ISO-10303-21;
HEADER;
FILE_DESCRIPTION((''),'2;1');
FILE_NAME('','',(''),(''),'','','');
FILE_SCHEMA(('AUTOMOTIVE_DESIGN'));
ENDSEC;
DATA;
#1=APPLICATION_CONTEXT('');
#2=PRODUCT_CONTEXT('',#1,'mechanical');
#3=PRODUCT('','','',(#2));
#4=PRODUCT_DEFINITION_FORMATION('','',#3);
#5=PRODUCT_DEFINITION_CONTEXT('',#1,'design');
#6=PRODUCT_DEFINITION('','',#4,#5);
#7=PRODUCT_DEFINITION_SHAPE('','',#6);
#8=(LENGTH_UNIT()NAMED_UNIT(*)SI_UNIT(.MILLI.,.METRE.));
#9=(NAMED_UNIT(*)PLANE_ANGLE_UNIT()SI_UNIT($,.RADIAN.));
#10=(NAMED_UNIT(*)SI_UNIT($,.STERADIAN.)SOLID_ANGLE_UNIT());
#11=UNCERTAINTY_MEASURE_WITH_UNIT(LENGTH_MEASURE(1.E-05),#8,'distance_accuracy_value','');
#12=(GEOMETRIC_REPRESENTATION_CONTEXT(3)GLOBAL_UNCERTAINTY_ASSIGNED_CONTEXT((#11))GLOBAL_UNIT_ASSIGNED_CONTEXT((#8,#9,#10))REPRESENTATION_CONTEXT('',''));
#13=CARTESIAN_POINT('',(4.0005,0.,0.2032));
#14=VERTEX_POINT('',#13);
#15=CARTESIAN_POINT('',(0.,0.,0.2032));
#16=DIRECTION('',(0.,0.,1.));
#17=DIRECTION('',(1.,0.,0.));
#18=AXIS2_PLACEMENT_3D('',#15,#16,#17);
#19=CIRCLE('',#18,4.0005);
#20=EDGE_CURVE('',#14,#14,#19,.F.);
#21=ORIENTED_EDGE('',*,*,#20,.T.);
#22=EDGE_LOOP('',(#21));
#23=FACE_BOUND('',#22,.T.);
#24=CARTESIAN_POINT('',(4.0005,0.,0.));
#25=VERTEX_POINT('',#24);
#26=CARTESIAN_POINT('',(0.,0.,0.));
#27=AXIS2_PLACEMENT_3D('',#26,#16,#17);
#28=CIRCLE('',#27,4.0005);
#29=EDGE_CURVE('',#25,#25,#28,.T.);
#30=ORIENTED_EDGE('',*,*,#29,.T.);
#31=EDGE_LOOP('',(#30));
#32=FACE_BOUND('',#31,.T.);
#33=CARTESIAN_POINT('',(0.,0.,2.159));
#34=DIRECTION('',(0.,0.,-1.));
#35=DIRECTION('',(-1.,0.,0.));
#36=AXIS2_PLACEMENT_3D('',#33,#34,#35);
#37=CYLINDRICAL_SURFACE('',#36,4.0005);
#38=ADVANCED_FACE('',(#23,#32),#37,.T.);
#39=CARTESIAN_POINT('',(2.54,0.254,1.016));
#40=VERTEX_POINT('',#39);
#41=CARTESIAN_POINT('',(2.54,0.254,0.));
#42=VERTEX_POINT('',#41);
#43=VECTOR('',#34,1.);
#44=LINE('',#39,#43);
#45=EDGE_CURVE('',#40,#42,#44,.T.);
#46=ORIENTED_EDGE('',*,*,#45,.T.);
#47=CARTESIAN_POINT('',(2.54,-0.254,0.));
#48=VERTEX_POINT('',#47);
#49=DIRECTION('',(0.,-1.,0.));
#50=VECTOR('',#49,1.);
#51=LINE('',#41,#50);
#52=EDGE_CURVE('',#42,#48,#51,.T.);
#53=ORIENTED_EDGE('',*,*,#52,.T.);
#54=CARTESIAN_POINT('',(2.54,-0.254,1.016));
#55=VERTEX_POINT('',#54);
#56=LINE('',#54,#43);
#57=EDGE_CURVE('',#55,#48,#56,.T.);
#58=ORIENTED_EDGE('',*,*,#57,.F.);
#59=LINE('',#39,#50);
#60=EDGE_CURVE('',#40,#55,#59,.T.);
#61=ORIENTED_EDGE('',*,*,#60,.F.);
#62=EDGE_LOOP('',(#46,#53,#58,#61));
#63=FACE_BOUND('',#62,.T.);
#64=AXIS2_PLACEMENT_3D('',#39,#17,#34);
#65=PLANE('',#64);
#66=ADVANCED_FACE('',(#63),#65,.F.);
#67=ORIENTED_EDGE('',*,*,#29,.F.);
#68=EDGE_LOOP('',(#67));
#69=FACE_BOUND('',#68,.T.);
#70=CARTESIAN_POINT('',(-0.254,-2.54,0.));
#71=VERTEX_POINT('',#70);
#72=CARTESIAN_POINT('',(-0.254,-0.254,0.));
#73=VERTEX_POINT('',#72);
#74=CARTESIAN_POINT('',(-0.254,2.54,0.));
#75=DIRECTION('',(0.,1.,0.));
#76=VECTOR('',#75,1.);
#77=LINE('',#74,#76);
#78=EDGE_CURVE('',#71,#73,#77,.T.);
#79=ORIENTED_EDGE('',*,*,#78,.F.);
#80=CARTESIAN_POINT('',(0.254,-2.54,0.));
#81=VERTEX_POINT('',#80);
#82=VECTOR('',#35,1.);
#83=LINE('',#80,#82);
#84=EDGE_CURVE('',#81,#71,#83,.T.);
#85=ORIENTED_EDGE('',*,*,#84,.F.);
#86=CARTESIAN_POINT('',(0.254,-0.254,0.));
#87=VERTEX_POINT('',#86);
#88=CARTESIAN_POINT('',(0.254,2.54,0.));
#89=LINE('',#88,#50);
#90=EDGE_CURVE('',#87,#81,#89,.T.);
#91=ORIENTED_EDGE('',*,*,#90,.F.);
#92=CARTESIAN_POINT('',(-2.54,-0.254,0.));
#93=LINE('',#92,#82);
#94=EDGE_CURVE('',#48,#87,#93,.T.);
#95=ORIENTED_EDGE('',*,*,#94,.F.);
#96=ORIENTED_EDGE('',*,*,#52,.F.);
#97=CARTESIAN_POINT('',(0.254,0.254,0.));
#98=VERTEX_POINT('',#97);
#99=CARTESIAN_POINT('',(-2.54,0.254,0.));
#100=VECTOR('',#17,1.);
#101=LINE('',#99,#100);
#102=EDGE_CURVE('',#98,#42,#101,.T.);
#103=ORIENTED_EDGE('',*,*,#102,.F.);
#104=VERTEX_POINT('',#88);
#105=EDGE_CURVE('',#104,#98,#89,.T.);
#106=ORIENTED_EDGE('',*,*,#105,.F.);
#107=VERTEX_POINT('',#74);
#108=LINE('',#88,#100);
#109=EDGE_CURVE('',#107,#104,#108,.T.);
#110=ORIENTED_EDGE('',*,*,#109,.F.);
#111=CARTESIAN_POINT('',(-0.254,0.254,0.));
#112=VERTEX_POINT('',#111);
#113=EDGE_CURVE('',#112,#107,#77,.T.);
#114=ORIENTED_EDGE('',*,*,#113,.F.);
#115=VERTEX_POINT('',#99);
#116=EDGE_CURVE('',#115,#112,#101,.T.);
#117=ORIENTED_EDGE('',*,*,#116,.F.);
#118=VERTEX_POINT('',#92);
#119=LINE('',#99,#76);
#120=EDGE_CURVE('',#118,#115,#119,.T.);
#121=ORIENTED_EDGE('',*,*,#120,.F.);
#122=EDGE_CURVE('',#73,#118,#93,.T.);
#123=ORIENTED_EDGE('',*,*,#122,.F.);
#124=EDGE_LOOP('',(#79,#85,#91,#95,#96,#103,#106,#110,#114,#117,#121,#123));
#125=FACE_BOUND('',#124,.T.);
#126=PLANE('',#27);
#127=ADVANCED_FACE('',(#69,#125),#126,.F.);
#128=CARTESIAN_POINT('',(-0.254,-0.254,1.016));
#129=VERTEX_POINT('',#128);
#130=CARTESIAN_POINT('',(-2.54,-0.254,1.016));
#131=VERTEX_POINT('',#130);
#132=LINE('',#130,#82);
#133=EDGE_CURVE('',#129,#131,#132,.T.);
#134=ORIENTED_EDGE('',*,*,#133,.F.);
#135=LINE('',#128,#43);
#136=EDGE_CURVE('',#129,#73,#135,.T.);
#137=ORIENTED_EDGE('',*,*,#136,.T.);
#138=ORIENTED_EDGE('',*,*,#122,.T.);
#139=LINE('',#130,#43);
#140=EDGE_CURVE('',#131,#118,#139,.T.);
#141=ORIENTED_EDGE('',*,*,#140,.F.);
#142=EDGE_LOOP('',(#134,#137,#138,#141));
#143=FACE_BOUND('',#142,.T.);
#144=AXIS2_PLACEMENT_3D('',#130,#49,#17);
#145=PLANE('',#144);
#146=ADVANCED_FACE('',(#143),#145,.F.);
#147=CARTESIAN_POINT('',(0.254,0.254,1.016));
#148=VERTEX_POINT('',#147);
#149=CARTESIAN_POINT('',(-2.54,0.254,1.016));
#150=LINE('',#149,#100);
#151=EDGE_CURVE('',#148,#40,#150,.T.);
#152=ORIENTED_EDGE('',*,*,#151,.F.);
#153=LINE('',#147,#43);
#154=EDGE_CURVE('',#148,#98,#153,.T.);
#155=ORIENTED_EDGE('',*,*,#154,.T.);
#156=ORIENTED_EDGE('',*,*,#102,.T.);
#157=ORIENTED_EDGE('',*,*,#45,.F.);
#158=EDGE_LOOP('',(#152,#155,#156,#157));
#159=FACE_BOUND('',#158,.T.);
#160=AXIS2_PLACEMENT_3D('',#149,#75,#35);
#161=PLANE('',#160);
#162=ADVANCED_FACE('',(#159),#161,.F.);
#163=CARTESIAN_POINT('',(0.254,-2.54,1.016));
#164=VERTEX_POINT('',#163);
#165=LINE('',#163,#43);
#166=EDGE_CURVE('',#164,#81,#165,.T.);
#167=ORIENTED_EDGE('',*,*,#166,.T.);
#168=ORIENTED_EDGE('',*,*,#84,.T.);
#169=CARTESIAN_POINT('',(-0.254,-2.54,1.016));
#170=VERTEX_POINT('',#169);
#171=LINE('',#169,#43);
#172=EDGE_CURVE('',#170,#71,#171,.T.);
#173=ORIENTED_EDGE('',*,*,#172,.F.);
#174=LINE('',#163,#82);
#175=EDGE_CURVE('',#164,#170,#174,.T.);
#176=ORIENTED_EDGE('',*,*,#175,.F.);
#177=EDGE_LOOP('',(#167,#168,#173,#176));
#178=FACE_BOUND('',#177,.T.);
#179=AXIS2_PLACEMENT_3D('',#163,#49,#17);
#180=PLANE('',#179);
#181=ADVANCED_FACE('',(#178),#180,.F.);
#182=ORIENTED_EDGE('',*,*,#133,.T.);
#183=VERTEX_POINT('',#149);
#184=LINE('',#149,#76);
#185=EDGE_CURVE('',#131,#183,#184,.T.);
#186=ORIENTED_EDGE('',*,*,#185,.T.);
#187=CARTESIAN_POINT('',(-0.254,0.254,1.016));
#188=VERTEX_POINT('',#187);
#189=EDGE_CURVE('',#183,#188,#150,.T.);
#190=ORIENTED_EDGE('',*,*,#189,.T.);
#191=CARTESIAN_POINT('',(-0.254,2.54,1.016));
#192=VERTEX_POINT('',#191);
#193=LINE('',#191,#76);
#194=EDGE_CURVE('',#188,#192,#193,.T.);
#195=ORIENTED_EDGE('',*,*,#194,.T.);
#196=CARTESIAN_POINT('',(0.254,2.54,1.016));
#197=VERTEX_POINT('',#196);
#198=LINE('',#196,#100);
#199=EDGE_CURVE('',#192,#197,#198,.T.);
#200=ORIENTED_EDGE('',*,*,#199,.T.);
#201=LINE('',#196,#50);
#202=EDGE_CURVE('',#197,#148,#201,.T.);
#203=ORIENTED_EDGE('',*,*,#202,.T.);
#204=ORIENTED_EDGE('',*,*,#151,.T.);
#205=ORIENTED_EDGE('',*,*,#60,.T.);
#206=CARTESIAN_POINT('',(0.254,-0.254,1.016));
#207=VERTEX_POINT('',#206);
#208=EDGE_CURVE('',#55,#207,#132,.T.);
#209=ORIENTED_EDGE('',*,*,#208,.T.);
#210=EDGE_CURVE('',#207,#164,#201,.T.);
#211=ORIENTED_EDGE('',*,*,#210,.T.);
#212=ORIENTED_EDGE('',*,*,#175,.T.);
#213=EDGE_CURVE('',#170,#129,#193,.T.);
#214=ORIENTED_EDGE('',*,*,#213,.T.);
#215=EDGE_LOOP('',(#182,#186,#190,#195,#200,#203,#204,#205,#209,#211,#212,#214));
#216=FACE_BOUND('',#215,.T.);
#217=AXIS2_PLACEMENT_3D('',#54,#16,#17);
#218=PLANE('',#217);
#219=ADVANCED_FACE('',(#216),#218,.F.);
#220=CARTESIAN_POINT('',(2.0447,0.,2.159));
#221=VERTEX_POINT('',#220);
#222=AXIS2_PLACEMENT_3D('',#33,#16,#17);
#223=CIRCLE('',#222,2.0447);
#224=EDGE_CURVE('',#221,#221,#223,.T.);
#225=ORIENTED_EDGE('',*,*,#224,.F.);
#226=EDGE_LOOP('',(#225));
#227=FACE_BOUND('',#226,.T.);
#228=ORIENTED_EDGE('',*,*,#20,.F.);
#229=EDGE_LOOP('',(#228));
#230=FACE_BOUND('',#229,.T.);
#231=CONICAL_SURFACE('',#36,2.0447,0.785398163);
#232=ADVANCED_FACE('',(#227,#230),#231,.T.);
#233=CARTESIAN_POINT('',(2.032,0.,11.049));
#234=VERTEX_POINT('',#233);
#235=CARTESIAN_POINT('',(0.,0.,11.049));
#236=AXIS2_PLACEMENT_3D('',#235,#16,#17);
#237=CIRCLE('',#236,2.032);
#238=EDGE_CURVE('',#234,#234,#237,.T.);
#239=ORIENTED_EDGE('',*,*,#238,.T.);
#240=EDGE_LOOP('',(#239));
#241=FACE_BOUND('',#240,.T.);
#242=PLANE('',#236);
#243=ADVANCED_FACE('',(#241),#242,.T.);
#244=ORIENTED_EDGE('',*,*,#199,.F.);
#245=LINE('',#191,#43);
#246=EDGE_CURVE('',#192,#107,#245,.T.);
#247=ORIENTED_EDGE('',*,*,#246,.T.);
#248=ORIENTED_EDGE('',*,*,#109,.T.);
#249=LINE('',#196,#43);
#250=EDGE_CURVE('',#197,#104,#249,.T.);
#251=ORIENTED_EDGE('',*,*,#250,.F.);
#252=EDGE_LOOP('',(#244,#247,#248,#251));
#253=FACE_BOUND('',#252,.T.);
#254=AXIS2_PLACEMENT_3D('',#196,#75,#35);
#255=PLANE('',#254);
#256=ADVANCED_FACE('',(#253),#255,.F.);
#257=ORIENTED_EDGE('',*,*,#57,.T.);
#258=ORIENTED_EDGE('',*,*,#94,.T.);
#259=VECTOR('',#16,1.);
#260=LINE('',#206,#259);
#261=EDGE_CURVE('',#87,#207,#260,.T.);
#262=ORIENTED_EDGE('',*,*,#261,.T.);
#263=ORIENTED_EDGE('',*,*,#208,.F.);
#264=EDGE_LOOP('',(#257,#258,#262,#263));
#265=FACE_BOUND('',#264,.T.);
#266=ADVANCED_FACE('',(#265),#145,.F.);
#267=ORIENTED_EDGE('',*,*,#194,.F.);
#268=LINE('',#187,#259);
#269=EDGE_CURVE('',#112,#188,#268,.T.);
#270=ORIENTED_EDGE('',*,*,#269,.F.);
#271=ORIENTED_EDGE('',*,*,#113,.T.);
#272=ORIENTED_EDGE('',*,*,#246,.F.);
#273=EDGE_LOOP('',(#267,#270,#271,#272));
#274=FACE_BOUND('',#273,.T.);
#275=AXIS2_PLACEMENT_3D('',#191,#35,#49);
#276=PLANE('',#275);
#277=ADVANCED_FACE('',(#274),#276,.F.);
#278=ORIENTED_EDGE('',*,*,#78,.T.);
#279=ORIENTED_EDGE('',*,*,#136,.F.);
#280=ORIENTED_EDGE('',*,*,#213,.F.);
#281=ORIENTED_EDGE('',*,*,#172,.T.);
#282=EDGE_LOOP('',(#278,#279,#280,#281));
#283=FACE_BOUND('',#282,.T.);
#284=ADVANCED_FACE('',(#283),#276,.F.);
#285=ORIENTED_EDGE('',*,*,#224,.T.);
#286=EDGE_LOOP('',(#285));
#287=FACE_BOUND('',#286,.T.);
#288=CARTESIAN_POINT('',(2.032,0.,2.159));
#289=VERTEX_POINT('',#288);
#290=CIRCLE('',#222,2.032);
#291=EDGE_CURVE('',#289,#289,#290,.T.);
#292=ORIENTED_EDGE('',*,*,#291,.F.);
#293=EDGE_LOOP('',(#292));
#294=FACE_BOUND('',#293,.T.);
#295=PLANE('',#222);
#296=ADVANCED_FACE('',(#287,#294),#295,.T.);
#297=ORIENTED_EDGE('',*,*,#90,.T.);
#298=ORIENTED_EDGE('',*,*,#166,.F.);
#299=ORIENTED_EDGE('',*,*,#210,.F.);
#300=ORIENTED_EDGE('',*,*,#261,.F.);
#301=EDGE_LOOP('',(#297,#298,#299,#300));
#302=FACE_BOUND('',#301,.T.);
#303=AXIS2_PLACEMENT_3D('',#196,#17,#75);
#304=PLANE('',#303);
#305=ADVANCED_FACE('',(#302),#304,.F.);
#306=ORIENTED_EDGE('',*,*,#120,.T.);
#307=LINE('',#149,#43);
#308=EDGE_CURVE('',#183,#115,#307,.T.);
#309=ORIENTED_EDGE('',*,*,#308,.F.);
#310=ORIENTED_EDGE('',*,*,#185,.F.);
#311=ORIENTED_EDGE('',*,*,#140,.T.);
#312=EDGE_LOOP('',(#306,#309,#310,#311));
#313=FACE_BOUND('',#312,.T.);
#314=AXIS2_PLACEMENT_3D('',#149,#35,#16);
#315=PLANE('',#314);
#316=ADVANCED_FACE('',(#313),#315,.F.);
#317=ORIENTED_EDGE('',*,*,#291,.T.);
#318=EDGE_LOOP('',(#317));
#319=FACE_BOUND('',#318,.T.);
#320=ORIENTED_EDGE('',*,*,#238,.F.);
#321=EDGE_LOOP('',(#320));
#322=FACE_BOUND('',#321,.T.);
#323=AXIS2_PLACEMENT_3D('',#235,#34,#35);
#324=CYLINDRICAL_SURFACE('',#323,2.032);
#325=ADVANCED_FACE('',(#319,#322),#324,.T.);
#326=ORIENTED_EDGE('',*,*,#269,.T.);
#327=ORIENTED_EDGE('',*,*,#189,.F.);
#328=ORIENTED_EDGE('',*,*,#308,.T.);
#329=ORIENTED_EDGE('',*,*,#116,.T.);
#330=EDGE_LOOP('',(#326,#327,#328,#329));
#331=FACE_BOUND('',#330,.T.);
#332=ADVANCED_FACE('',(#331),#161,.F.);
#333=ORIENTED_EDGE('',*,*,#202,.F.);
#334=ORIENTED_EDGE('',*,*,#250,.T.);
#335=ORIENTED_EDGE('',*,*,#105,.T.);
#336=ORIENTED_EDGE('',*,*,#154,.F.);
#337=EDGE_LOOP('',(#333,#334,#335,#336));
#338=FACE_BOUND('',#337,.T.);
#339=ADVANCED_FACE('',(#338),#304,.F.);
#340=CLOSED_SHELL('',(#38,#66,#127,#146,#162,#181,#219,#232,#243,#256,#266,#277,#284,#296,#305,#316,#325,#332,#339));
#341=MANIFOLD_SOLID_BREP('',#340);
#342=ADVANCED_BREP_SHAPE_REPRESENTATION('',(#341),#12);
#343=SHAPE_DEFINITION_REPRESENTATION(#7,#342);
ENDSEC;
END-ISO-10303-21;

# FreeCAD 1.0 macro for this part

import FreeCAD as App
import Part
import Sketcher

V = App.Vector
Q = App.Units.Quantity


def edges_at(feature, points):
    """Names of the edges that pass closest to the given points."""
    edges = feature.Shape.Edges
    near = lambda p: min(range(len(edges)), key=lambda i: edges[i].distToShape(Part.Vertex(*p))[0])
    return sorted({f"Edge{near(p) + 1}" for p in points})


def add_polygon(sketch, points):
    """Adds a closed chain of lines whose ends are joined by coincident constraints."""
    first, n = sketch.GeometryCount, len(points)
    for a, b in zip(points, points[1:] + points[:1]):
        sketch.addGeometry(Part.LineSegment(App.Vector(*a, 0), App.Vector(*b, 0)), False)
    for i in range(n):
        sketch.addConstraint(Sketcher.Constraint("Coincident", first + i, 2, first + (i + 1) % n, 1))

doc = App.newDocument("Part")
body = doc.addObject("PartDesign::Body", "Body")

sketch1 = body.newObject("Sketcher::SketchObject", "Sketch")
sketch1.AttachmentSupport = (doc.getObject("XY_Plane"), [""])
sketch1.MapMode = "FlatFace"
sketch1.addGeometry(Part.Circle(V(0, 0, 0), V(0, 0, 1), 4), False)
sketch1.addConstraint([
    Sketcher.Constraint("Coincident", 0, 3, -1, 1),
    Sketcher.Constraint("Diameter", 0, Q("0.315 in")),
])
pad1 = body.newObject("PartDesign::Pad", "Pad")
pad1.Profile = sketch1
pad1.Length = Q("0.085 in")

sketch2 = body.newObject("Sketcher::SketchObject", "Sketch001")
sketch2.AttachmentSupport = (doc.getObject("XY_Plane"), [""])
sketch2.MapMode = "FlatFace"
sketch2.AttachmentOffset = App.Placement(V(0, 0, 0.085 * 25.4), App.Rotation())
sketch2.addGeometry(Part.Circle(V(0, 0, 0), V(0, 0, 1), 2), False)
sketch2.addConstraint([
    Sketcher.Constraint("Coincident", 0, 3, -1, 1),
    Sketcher.Constraint("Diameter", 0, Q("0.16 in")),
])
pad2 = body.newObject("PartDesign::Pad", "Pad001")
pad2.Profile = sketch2
pad2.Length = Q("0.35 in")

sketch3 = body.newObject("Sketcher::SketchObject", "Sketch002")
sketch3.AttachmentSupport = (doc.getObject("XY_Plane"), [""])
sketch3.MapMode = "FlatFace"
add_polygon(sketch3, [(2.5, 0.3), (2.5, -0.3), (-2.5, -0.3), (-2.5, 0.3)])
sketch3.addConstraint([
    Sketcher.Constraint("Vertical", 0),
    Sketcher.Constraint("Horizontal", 1),
    Sketcher.Constraint("Vertical", 2),
    Sketcher.Constraint("Horizontal", 3),
    Sketcher.Constraint("Symmetric", 0, 2, 2, 2, -1, 1),
    Sketcher.Constraint("DistanceX", 1, 2, 1, 1, Q("0.2 in")),
    Sketcher.Constraint("DistanceY", 0, 2, 0, 1, Q("0.02 in")),
])
pocket1 = body.newObject("PartDesign::Pocket", "Pocket")
pocket1.Profile = sketch3
pocket1.Length = Q("0.04 in")
pocket1.Reversed = True
doc.recompute()

polarpattern = body.newObject("PartDesign::PolarPattern", "PolarPattern")
polarpattern.Originals = [pocket1]
polarpattern.Axis = (doc.getObject("Z_Axis"), [""])
polarpattern.Angle = 90
polarpattern.Occurrences = 2
polarpattern.Reversed = True
body.Tip = polarpattern
doc.recompute()

chamfer = body.newObject("PartDesign::Chamfer", "Chamfer")
chamfer.Base = (polarpattern, edges_at(polarpattern, [(-4, 0, 2.159)]))
chamfer.Size = Q("0.077 in")

doc.recompute()
